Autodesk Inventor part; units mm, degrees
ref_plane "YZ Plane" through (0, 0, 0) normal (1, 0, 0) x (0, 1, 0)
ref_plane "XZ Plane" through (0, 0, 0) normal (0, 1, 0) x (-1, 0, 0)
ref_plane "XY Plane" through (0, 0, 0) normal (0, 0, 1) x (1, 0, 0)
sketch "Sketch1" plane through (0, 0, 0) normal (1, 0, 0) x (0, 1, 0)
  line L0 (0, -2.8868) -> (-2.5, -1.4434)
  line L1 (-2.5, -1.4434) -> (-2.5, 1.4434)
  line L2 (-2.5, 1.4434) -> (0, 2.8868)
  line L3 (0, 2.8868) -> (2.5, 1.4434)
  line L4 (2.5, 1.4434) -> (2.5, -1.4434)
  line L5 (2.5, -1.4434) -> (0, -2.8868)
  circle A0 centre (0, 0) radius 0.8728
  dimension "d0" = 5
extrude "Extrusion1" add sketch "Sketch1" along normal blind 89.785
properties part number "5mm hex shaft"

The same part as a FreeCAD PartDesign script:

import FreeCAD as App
import Part
import Sketcher
Q = App.Units.Quantity

doc = App.newDocument("Part")
body = doc.addObject("PartDesign::Body", "Body")

sketch1 = body.newObject("Sketcher::SketchObject", "Sketch")
sketch1.AttachmentSupport = (doc.getObject("YZ_Plane"), [""])
sketch1.MapMode = "FlatFace"
sketch1.addGeometry(Part.LineSegment(App.Vector(-2.5, -1.4434, 0), App.Vector(0, -2.8868, 0)), False)
sketch1.addGeometry(Part.LineSegment(App.Vector(0, -2.8868, 0), App.Vector(2.5, -1.4434, 0)), False)
sketch1.addGeometry(Part.LineSegment(App.Vector(2.5, -1.4434, 0), App.Vector(2.5, 1.4434, 0)), False)
sketch1.addGeometry(Part.LineSegment(App.Vector(2.5, 1.4434, 0), App.Vector(0, 2.8868, 0)), False)
sketch1.addGeometry(Part.LineSegment(App.Vector(0, 2.8868, 0), App.Vector(-2.5, 1.4434, 0)), False)
sketch1.addGeometry(Part.LineSegment(App.Vector(-2.5, 1.4434, 0), App.Vector(-2.5, -1.4434, 0)), False)
sketch1.addGeometry(Part.Circle(App.Vector(0, 0, 0), App.Vector(0, 0, 1), 0.8728), False)
sketch1.addConstraint(Sketcher.Constraint("Coincident", 0, 2, 1, 1))
sketch1.addConstraint(Sketcher.Constraint("Coincident", 1, 2, 2, 1))
sketch1.addConstraint(Sketcher.Constraint("Coincident", 2, 2, 3, 1))
sketch1.addConstraint(Sketcher.Constraint("Coincident", 3, 2, 4, 1))
sketch1.addConstraint(Sketcher.Constraint("Coincident", 4, 2, 5, 1))
sketch1.addConstraint(Sketcher.Constraint("Coincident", 5, 2, 0, 1))
sketch1.addConstraint(Sketcher.Constraint("Vertical", 2))
sketch1.addConstraint(Sketcher.Constraint("Vertical", 5))
sketch1.addConstraint(Sketcher.Constraint("Coincident", 6, 3, -1, 1))
sketch1.addConstraint(Sketcher.Constraint("Symmetric", 0, 2, 3, 2, -1, 1))
sketch1.addConstraint(Sketcher.Constraint("Symmetric", 1, 2, 4, 2, -1, 1))
sketch1.addConstraint(Sketcher.Constraint("PointOnObject", 0, 2, -2))
sketch1.addConstraint(Sketcher.Constraint("Parallel", 0, 3))
sketch1.addConstraint(Sketcher.Constraint("Horizontal", 2, 2, 4, 2))
sketch1.addConstraint(Sketcher.Constraint("DistanceX", 4, 2, 2, 2, 5.0))
sketch1.addConstraint(Sketcher.Constraint("Angle", 0, Q("-30.0004 deg")))
sketch1.addConstraint(Sketcher.Constraint("Diameter", 6, 1.7456))
sketch1.addConstraint(Sketcher.Constraint("DistanceY", 2, 1, 2, 2, 2.8868))
pad1 = body.newObject("PartDesign::Pad", "Pad")
pad1.Profile = sketch1
pad1.Length = 89.785

doc.recompute()
